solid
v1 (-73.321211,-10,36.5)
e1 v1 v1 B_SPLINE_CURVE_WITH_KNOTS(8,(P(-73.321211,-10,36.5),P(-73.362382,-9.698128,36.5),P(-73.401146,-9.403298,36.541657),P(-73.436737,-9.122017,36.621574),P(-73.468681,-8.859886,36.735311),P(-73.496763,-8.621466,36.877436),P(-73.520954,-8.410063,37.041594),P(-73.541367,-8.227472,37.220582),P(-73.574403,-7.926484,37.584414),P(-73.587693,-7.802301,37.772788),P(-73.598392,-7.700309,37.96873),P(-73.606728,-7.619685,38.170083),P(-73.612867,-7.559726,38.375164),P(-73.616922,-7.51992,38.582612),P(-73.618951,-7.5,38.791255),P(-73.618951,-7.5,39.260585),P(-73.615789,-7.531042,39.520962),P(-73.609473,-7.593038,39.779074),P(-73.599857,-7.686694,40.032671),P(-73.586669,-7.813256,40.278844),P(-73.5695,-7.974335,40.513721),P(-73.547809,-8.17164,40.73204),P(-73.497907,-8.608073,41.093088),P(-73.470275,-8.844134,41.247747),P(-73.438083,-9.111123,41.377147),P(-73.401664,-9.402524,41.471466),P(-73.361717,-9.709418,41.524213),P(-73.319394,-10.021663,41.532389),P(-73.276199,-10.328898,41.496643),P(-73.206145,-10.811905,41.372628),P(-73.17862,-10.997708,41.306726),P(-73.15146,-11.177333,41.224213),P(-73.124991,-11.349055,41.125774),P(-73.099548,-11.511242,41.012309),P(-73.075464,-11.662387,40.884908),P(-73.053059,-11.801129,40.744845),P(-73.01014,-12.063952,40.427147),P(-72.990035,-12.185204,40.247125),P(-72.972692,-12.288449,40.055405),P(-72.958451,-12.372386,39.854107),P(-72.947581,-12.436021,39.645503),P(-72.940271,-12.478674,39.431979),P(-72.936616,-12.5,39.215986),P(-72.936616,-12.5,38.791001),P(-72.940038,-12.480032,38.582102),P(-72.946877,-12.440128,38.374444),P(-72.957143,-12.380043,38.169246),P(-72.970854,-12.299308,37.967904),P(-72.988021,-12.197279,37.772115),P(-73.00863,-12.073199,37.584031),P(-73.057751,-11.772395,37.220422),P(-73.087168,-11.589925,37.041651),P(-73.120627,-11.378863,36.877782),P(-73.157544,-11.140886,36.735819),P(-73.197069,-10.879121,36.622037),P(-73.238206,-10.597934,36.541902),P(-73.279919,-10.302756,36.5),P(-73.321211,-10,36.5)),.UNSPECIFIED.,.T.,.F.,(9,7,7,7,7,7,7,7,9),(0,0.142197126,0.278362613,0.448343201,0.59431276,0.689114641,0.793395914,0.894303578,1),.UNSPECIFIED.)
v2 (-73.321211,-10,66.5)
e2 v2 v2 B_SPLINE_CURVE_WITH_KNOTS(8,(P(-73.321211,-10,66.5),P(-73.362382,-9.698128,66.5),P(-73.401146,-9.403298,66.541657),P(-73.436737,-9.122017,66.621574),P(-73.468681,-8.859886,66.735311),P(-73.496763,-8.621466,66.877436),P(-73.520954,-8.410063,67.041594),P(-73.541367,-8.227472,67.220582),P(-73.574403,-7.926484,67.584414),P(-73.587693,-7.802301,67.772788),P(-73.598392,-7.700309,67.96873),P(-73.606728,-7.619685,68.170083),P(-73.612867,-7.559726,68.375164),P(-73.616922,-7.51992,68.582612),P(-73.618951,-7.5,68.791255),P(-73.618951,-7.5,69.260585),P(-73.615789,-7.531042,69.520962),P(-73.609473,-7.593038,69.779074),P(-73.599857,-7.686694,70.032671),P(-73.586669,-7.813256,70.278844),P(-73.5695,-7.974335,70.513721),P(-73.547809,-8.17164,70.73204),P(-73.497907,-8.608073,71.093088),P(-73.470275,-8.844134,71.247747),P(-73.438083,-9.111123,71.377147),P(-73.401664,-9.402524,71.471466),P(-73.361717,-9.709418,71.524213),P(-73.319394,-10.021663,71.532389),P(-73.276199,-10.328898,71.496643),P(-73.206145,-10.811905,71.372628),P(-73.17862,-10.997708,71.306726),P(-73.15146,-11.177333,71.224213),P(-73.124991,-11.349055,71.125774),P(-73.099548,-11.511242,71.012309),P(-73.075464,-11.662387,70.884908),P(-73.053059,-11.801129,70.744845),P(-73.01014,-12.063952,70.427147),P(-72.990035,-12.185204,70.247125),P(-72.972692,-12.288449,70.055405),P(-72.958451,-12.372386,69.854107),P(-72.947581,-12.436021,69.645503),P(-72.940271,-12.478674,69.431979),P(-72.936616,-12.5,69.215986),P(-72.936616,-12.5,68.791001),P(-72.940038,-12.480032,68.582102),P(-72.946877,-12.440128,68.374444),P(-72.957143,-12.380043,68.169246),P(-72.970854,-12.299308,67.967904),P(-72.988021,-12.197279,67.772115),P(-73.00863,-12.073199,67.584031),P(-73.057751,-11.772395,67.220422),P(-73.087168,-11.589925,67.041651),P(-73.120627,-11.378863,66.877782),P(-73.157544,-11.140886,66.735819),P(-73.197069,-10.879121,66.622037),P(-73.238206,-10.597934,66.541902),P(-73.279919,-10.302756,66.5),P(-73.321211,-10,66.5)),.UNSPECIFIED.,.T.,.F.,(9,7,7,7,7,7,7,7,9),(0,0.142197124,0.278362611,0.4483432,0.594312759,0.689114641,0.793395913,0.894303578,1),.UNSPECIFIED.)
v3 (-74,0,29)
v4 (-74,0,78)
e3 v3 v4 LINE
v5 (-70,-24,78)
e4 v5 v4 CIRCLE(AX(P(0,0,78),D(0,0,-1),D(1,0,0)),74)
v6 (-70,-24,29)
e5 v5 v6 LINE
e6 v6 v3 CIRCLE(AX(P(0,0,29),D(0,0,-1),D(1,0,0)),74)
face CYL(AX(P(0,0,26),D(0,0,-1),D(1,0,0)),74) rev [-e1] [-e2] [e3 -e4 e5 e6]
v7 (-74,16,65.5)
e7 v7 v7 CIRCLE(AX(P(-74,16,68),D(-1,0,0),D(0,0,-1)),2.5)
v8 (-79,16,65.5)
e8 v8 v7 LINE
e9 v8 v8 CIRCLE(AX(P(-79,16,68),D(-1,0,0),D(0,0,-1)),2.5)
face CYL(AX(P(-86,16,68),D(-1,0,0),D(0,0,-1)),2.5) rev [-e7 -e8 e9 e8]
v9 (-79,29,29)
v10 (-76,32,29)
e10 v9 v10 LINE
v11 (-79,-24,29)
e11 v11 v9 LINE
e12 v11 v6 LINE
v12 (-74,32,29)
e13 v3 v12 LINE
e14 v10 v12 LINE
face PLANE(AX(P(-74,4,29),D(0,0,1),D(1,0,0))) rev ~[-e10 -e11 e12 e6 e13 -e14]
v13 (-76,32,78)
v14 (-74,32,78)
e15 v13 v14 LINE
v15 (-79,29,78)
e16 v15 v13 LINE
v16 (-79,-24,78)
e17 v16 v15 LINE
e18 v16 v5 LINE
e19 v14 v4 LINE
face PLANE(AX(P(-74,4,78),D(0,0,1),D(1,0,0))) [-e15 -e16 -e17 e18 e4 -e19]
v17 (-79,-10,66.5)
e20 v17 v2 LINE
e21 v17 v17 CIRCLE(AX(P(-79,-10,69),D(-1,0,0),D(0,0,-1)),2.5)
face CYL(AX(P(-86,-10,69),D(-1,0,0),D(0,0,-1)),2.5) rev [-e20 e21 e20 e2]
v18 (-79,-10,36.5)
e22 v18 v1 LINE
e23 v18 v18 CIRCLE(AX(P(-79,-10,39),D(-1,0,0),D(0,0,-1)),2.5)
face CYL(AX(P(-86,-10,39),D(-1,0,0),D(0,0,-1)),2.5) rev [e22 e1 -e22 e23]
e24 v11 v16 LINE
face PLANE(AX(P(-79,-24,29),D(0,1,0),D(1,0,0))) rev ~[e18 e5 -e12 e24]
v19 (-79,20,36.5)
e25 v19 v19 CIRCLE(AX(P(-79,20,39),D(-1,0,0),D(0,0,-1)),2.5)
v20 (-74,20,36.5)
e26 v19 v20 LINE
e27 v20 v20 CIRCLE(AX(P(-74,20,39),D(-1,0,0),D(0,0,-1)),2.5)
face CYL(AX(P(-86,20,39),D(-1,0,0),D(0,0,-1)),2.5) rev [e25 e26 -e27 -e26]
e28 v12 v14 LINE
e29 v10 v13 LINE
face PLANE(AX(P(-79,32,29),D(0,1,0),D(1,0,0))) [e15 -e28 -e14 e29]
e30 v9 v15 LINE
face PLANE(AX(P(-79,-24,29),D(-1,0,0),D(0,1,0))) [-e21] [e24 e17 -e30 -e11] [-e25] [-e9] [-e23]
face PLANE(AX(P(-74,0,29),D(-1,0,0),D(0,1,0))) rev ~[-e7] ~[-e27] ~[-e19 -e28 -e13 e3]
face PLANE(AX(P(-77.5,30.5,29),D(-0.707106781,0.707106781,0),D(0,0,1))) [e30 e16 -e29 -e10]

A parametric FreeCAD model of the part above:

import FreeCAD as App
import Part
import Sketcher
Q = App.Units.Quantity


def edges_at(feature, points):
    """Names of the edges that pass closest to the given points."""
    edges = feature.Shape.Edges
    near = lambda p: min(range(len(edges)), key=lambda i: edges[i].distToShape(Part.Vertex(*p))[0])
    return sorted({f"Edge{near(p) + 1}" for p in points})

doc = App.newDocument("Part")
params = doc.addObject("Spreadsheet::Sheet", "Params")
for row, (alias, value) in enumerate([
    ("sketch1_width", "148 mm"),
    ("sketch1_height", "74 mm"),
    ("pad1_length", "55 mm"),
    ("sketch2_diameter", "148 mm"),
    ("pad2_length", "60 mm"),
    ("sketch3_diameter", "5 mm"),
    ("pad3_length", "40 mm"),
    ("sketch4_diameter", "5 mm"),
    ("pad4_length", "40 mm"),
    ("sketch5_diameter", "5 mm"),
    ("pad5_length", "40 mm"),
    ("sketch6_diameter", "5 mm"),
    ("pad6_length", "40 mm"),
    ("sketch7_width", "10 mm"),
    ("sketch7_height", "56 mm"),
    ("pad7_length", "49 mm"),
    ("chamfer_size", "3 mm"),
], start=1):
    params.set(f"A{row}", alias)
    params.set(f"B{row}", "=" + value)
    params.setAlias(f"B{row}", alias)

body = doc.addObject("PartDesign::Body", "Body")

sketch1 = body.newObject("Sketcher::SketchObject", "Sketch")
sketch1.AttachmentSupport = (doc.getObject("XY_Plane"), [""])
sketch1.MapMode = "FlatFace"
sketch1.AttachmentOffset = App.Placement(App.Vector(0, 0, 29), App.Rotation())
sketch1.addGeometry(Part.LineSegment(App.Vector(-74, 74, 0), App.Vector(-74, 0, 0)), False)
sketch1.addGeometry(Part.LineSegment(App.Vector(-74, 0, 0), App.Vector(74, 0, 0)), False)
sketch1.addGeometry(Part.LineSegment(App.Vector(74, 0, 0), App.Vector(74, 74, 0)), False)
sketch1.addGeometry(Part.LineSegment(App.Vector(74, 74, 0), App.Vector(-74, 74, 0)), False)
sketch1.addConstraint(Sketcher.Constraint("Coincident", 0, 2, 1, 1))
sketch1.addConstraint(Sketcher.Constraint("Coincident", 1, 2, 2, 1))
sketch1.addConstraint(Sketcher.Constraint("Coincident", 2, 2, 3, 1))
sketch1.addConstraint(Sketcher.Constraint("Coincident", 3, 2, 0, 1))
sketch1.addConstraint(Sketcher.Constraint("Vertical", 0))
sketch1.addConstraint(Sketcher.Constraint("Horizontal", 1))
sketch1.addConstraint(Sketcher.Constraint("Vertical", 2))
sketch1.addConstraint(Sketcher.Constraint("Horizontal", 3))
sketch1.addConstraint(Sketcher.Constraint("Symmetric", 0, 2, 1, 2, -1, 1))
sketch1.addConstraint(Sketcher.Constraint("DistanceX", 1, 1, 1, 2, Q("148 mm")))
sketch1.addConstraint(Sketcher.Constraint("DistanceY", 0, 2, 0, 1, Q("74 mm")))
sketch1.setExpression("Constraints[9]", "Params.sketch1_width")
sketch1.setExpression("Constraints[10]", "Params.sketch1_height")
pad1 = body.newObject("PartDesign::Pad", "Pad")
pad1.Profile = sketch1
pad1.setExpression("Length", "Params.pad1_length")
body2 = doc.addObject("PartDesign::Body", "Body001")

sketch2 = body2.newObject("Sketcher::SketchObject", "Sketch001")
sketch2.AttachmentSupport = (doc.getObject("XY_Plane001"), [""])
sketch2.MapMode = "FlatFace"
sketch2.AttachmentOffset = App.Placement(App.Vector(0, 0, 26), App.Rotation())
sketch2.addGeometry(Part.Circle(App.Vector(0, 0, 0), App.Vector(0, 0, 1), 74), False)
sketch2.addConstraint(Sketcher.Constraint("Coincident", 0, 3, -1, 1))
sketch2.addConstraint(Sketcher.Constraint("Diameter", 0, Q("148 mm")))
sketch2.setExpression("Constraints[1]", "Params.sketch2_diameter")
pad2 = body2.newObject("PartDesign::Pad", "Pad001")
pad2.Profile = sketch2
pad2.setExpression("Length", "Params.pad2_length")
body3 = doc.addObject("PartDesign::Body", "Body002")

sketch3 = body3.newObject("Sketcher::SketchObject", "Sketch002")
sketch3.AttachmentSupport = (doc.getObject("YZ_Plane002"), [""])
sketch3.MapMode = "FlatFace"
sketch3.AttachmentOffset = App.Placement(App.Vector(0, 0, -86), App.Rotation())
sketch3.addGeometry(Part.Circle(App.Vector(20, 39, 0), App.Vector(0, 0, 1), 2.5), False)
sketch3.addConstraint(Sketcher.Constraint("Diameter", 0, Q("5 mm")))
sketch3.addConstraint(Sketcher.Constraint("DistanceX", -1, 1, 0, 3, Q("20 mm")))
sketch3.addConstraint(Sketcher.Constraint("DistanceY", -1, 1, 0, 3, Q("39 mm")))
sketch3.setExpression("Constraints[0]", "Params.sketch3_diameter")
pad3 = body3.newObject("PartDesign::Pad", "Pad002")
pad3.Profile = sketch3
pad3.setExpression("Length", "Params.pad3_length")
body4 = doc.addObject("PartDesign::Body", "Body003")

sketch4 = body4.newObject("Sketcher::SketchObject", "Sketch003")
sketch4.AttachmentSupport = (doc.getObject("YZ_Plane003"), [""])
sketch4.MapMode = "FlatFace"
sketch4.AttachmentOffset = App.Placement(App.Vector(0, 0, -86), App.Rotation())
sketch4.addGeometry(Part.Circle(App.Vector(-10, 69, 0), App.Vector(0, 0, 1), 2.5), False)
sketch4.addConstraint(Sketcher.Constraint("Diameter", 0, Q("5 mm")))
sketch4.addConstraint(Sketcher.Constraint("DistanceX", 0, 3, -1, 1, Q("10 mm")))
sketch4.addConstraint(Sketcher.Constraint("DistanceY", -1, 1, 0, 3, Q("69 mm")))
sketch4.setExpression("Constraints[0]", "Params.sketch4_diameter")
pad4 = body4.newObject("PartDesign::Pad", "Pad003")
pad4.Profile = sketch4
pad4.setExpression("Length", "Params.pad4_length")
body5 = doc.addObject("PartDesign::Body", "Body004")

sketch5 = body5.newObject("Sketcher::SketchObject", "Sketch004")
sketch5.AttachmentSupport = (doc.getObject("YZ_Plane004"), [""])
sketch5.MapMode = "FlatFace"
sketch5.AttachmentOffset = App.Placement(App.Vector(0, 0, -86), App.Rotation())
sketch5.addGeometry(Part.Circle(App.Vector(16, 68, 0), App.Vector(0, 0, 1), 2.5), False)
sketch5.addConstraint(Sketcher.Constraint("Diameter", 0, Q("5 mm")))
sketch5.addConstraint(Sketcher.Constraint("DistanceX", -1, 1, 0, 3, Q("16 mm")))
sketch5.addConstraint(Sketcher.Constraint("DistanceY", -1, 1, 0, 3, Q("68 mm")))
sketch5.setExpression("Constraints[0]", "Params.sketch5_diameter")
pad5 = body5.newObject("PartDesign::Pad", "Pad004")
pad5.Profile = sketch5
pad5.setExpression("Length", "Params.pad5_length")
body6 = doc.addObject("PartDesign::Body", "Body005")
body6.AllowCompound = True

sketch6 = body6.newObject("Sketcher::SketchObject", "Sketch005")
sketch6.AttachmentSupport = (doc.getObject("YZ_Plane005"), [""])
sketch6.MapMode = "FlatFace"
sketch6.AttachmentOffset = App.Placement(App.Vector(0, 0, -86), App.Rotation())
sketch6.addGeometry(Part.Circle(App.Vector(-10, 39, 0), App.Vector(0, 0, 1), 2.5), False)
sketch6.addConstraint(Sketcher.Constraint("Diameter", 0, Q("5 mm")))
sketch6.addConstraint(Sketcher.Constraint("DistanceX", 0, 3, -1, 1, Q("10 mm")))
sketch6.addConstraint(Sketcher.Constraint("DistanceY", -1, 1, 0, 3, Q("39 mm")))
sketch6.setExpression("Constraints[0]", "Params.sketch6_diameter")
pad6 = body6.newObject("PartDesign::Pad", "Pad005")
pad6.Profile = sketch6
pad6.setExpression("Length", "Params.pad6_length")
doc.recompute()

boolean = body6.newObject("PartDesign::Boolean", "Boolean")
boolean.Type = "Fuse"
boolean.addObjects([body3])
doc.recompute()

boolean2 = body6.newObject("PartDesign::Boolean", "Boolean001")
boolean2.Type = "Fuse"
boolean2.addObjects([body4])
doc.recompute()

boolean3 = body6.newObject("PartDesign::Boolean", "Boolean002")
boolean3.Type = "Fuse"
boolean3.addObjects([body5])
body7 = doc.addObject("PartDesign::Body", "Body006")

sketch7 = body7.newObject("Sketcher::SketchObject", "Sketch006")
sketch7.AttachmentSupport = (doc.getObject("XY_Plane006"), [""])
sketch7.MapMode = "FlatFace"
sketch7.AttachmentOffset = App.Placement(App.Vector(0, 0, 29), App.Rotation())
sketch7.addGeometry(Part.LineSegment(App.Vector(-79, 32, 0), App.Vector(-79, -24, 0)), False)
sketch7.addGeometry(Part.LineSegment(App.Vector(-79, -24, 0), App.Vector(-69, -24, 0)), False)
sketch7.addGeometry(Part.LineSegment(App.Vector(-69, -24, 0), App.Vector(-69, 32, 0)), False)
sketch7.addGeometry(Part.LineSegment(App.Vector(-69, 32, 0), App.Vector(-79, 32, 0)), False)
sketch7.addConstraint(Sketcher.Constraint("Coincident", 0, 2, 1, 1))
sketch7.addConstraint(Sketcher.Constraint("Coincident", 1, 2, 2, 1))
sketch7.addConstraint(Sketcher.Constraint("Coincident", 2, 2, 3, 1))
sketch7.addConstraint(Sketcher.Constraint("Coincident", 3, 2, 0, 1))
sketch7.addConstraint(Sketcher.Constraint("Vertical", 0))
sketch7.addConstraint(Sketcher.Constraint("Horizontal", 1))
sketch7.addConstraint(Sketcher.Constraint("Vertical", 2))
sketch7.addConstraint(Sketcher.Constraint("Horizontal", 3))
sketch7.addConstraint(Sketcher.Constraint("DistanceX", 1, 1, 1, 2, Q("10 mm")))
sketch7.addConstraint(Sketcher.Constraint("DistanceY", 0, 2, 0, 1, Q("56 mm")))
sketch7.addConstraint(Sketcher.Constraint("DistanceX", 0, 2, -1, 1, Q("79 mm")))
sketch7.addConstraint(Sketcher.Constraint("DistanceY", 0, 2, -1, 1, Q("24 mm")))
sketch7.setExpression("Constraints[8]", "Params.sketch7_width")
sketch7.setExpression("Constraints[9]", "Params.sketch7_height")
pad7 = body7.newObject("PartDesign::Pad", "Pad006")
pad7.Profile = sketch7
pad7.setExpression("Length", "Params.pad7_length")
doc.recompute()

chamfer = body7.newObject("PartDesign::Chamfer", "Chamfer")
chamfer.Base = (pad7, edges_at(pad7, [(-79, 32, 53.5)]))
chamfer.setExpression("Size", "Params.chamfer_size")
doc.recompute()

boolean4 = body7.newObject("PartDesign::Boolean", "Boolean003")
boolean4.Type = "Cut"
boolean4.addObjects([body6])
doc.recompute()

boolean5 = body7.newObject("PartDesign::Boolean", "Boolean004")
boolean5.Type = "Cut"
boolean5.addObjects([body2])
doc.recompute()

boolean6 = body7.newObject("PartDesign::Boolean", "Boolean005")
boolean6.Type = "Cut"
boolean6.addObjects([body])

doc.recompute()
